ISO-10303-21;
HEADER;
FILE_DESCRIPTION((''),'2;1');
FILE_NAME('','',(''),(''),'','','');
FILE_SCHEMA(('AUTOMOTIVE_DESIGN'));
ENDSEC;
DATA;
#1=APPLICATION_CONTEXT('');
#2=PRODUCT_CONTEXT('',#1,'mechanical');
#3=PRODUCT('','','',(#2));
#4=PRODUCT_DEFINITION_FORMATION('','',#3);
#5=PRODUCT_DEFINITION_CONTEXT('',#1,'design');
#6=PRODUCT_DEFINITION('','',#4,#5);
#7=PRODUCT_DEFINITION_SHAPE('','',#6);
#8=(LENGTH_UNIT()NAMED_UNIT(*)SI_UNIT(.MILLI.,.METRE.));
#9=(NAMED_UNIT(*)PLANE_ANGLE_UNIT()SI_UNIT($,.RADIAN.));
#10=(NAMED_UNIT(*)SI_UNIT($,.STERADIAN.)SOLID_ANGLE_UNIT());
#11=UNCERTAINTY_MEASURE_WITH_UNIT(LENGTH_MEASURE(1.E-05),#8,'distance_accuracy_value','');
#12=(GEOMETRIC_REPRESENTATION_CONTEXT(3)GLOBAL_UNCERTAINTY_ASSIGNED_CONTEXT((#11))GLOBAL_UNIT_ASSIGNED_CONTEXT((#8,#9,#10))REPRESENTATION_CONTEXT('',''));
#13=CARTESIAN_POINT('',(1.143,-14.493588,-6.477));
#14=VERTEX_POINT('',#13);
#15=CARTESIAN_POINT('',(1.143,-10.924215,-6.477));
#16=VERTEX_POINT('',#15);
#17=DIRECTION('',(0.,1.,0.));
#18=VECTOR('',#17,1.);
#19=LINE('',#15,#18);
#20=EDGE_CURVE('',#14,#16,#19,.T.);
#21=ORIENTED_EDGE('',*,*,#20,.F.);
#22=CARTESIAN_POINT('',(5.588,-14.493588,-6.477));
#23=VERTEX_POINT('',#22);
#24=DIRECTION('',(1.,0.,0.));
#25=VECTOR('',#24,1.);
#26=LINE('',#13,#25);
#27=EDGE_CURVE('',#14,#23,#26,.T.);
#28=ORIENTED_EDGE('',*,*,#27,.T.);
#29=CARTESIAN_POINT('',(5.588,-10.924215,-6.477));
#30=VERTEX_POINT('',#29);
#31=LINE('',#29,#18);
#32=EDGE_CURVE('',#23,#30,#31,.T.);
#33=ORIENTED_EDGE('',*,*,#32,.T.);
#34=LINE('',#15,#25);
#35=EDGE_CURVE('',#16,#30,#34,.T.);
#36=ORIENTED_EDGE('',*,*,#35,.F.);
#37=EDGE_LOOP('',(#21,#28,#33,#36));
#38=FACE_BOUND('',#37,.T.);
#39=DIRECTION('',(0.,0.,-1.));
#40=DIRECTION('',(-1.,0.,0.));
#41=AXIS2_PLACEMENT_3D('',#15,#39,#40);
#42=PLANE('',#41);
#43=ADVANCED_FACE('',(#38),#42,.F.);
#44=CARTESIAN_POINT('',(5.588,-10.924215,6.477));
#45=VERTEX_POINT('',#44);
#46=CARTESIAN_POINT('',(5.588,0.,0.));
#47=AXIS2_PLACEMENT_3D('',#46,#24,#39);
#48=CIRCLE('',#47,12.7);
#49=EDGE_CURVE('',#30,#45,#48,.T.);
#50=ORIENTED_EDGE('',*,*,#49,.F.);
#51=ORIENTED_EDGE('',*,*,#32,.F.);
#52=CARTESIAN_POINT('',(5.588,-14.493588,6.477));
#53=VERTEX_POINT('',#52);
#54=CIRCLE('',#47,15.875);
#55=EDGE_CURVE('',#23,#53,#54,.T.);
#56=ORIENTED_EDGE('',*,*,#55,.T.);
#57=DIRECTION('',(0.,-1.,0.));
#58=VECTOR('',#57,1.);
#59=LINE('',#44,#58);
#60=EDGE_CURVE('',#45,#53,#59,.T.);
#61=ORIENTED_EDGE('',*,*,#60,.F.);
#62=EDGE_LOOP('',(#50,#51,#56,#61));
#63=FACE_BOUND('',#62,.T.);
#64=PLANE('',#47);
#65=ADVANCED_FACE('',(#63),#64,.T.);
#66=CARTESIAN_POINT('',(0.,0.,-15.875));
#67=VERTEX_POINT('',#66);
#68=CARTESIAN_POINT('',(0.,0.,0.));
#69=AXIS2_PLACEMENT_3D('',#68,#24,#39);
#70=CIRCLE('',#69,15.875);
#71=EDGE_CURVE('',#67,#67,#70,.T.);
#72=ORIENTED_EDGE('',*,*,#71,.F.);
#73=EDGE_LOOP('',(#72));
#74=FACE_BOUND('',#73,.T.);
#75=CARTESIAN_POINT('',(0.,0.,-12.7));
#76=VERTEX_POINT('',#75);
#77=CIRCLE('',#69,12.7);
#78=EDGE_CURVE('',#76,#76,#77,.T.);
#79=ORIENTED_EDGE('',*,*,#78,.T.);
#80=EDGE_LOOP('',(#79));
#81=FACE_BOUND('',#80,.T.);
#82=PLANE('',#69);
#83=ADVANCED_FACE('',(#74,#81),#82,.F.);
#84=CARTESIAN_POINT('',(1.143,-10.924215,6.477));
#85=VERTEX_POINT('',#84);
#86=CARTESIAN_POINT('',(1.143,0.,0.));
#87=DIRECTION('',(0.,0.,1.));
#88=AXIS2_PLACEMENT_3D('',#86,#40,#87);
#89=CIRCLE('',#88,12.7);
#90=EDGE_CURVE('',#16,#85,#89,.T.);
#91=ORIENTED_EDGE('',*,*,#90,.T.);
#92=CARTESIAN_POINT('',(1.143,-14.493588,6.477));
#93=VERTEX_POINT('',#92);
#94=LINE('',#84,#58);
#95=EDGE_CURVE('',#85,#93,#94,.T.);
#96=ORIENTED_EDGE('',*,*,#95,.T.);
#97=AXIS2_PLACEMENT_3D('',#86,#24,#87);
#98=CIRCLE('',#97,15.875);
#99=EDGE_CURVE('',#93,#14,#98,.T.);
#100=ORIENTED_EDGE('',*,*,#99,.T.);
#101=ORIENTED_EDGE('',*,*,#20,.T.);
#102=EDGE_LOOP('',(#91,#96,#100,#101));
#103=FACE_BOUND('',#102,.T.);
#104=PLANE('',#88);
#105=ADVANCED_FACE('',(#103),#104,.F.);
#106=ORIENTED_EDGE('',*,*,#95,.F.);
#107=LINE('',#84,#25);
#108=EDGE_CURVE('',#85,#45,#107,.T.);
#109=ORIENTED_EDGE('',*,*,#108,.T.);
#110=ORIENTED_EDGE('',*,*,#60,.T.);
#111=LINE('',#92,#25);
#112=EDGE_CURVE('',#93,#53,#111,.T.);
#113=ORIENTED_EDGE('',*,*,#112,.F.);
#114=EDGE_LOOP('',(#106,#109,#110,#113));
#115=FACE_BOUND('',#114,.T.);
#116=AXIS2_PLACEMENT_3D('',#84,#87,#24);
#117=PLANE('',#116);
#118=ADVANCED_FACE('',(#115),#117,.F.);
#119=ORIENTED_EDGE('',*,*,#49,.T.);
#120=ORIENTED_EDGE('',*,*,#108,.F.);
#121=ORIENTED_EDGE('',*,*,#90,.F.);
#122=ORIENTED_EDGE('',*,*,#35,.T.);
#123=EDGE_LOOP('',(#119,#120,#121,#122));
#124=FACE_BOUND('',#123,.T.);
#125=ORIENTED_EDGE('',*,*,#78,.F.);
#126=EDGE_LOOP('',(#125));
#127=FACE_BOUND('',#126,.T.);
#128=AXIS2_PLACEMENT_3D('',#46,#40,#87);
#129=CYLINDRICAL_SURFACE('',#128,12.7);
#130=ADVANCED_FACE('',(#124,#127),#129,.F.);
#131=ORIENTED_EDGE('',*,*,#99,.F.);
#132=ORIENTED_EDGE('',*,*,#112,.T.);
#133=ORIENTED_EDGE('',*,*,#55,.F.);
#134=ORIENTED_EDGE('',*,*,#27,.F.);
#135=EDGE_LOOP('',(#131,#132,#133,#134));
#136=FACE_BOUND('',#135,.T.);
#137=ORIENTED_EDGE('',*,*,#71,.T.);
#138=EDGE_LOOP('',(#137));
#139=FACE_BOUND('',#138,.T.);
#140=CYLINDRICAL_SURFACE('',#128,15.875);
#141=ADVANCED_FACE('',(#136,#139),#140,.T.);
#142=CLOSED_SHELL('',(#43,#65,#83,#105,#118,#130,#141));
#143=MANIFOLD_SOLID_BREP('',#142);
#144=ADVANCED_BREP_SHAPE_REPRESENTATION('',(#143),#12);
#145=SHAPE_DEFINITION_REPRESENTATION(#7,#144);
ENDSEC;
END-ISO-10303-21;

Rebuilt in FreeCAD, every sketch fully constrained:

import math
import FreeCAD as App
import Part
import Sketcher
Q = App.Units.Quantity

doc = App.newDocument("Part")
body = doc.addObject("PartDesign::Body", "Body")

# Sketch on YZ plane
sketch1 = body.newObject("Sketcher::SketchObject", "Sketch")
sketch1.AttachmentSupport = (doc.getObject("YZ_Plane"), [""])
sketch1.MapMode = "FlatFace"
sketch1.addGeometry([
    Part.Circle(App.Vector(0, 0, 0), App.Vector(0, 0, 1), 16),
    Part.Circle(App.Vector(0, 0, 0), App.Vector(0, 0, 1), 13),
], False)
sketch1.addConstraint([
    Sketcher.Constraint("Coincident", 0, 3, -1, 1),
    Sketcher.Constraint("Coincident", 1, 3, -1, 1),
    Sketcher.Constraint("Diameter", 1, Q("1 in")),
    Sketcher.Constraint("Diameter", 0, Q("1.25 in")),
])
pad1 = body.newObject("PartDesign::Pad", "Pad")
pad1.Profile = sketch1
pad1.Length = Q("0.22 in")

# Sketch on YZ plane
sketch2 = body.newObject("Sketcher::SketchObject", "Sketch001")
sketch2.AttachmentSupport = (doc.getObject("YZ_Plane"), [""])
sketch2.MapMode = "FlatFace"
sketch2.AttachmentOffset = App.Placement(App.Vector(0, 0, 0.045 * 25.4), App.Rotation())
sketch2.addGeometry([
    Part.LineSegment(App.Vector(-10.9, 6.5, 0), App.Vector(-14.5, 6.5, 0)),
    Part.ArcOfCircle(Part.Circle(App.Vector(0, 0, 0), App.Vector(0, 0, 1), 15.9), math.radians(156), math.radians(204)),
    Part.LineSegment(App.Vector(-14.5, -6.5, 0), App.Vector(-10.9, -6.5, 0)),
    Part.LineSegment(App.Vector(-10.9, -6.5, 0), App.Vector(-10.9, 6.5, 0)),
], False)
sketch2.addConstraint([
    Sketcher.Constraint("Coincident", 0, 2, 1, 1),
    Sketcher.Constraint("Coincident", 1, 2, 2, 1),
    Sketcher.Constraint("Coincident", 2, 2, 3, 1),
    Sketcher.Constraint("Coincident", 3, 2, 0, 1),
    Sketcher.Constraint("Horizontal", 0),
    Sketcher.Constraint("Horizontal", 2),
    Sketcher.Constraint("Vertical", 3),
    Sketcher.Constraint("Coincident", 1, 3, -1, 1),
    Sketcher.Constraint("Vertical", 0, 2, 1, 2),
    Sketcher.Constraint("Radius", 1, Q("0.625 in")),
    Sketcher.Constraint("DistanceY", 3, 1, 3, 2, Q("0.51 in")),
    Sketcher.Constraint("DistanceX", 0, 2, 0, 1, 3.569373),
])
pocket1 = body.newObject("PartDesign::Pocket", "Pocket")
pocket1.Profile = sketch2
pocket1.Length = Q("0.175 in")
pocket1.Reversed = True

doc.recompute()
